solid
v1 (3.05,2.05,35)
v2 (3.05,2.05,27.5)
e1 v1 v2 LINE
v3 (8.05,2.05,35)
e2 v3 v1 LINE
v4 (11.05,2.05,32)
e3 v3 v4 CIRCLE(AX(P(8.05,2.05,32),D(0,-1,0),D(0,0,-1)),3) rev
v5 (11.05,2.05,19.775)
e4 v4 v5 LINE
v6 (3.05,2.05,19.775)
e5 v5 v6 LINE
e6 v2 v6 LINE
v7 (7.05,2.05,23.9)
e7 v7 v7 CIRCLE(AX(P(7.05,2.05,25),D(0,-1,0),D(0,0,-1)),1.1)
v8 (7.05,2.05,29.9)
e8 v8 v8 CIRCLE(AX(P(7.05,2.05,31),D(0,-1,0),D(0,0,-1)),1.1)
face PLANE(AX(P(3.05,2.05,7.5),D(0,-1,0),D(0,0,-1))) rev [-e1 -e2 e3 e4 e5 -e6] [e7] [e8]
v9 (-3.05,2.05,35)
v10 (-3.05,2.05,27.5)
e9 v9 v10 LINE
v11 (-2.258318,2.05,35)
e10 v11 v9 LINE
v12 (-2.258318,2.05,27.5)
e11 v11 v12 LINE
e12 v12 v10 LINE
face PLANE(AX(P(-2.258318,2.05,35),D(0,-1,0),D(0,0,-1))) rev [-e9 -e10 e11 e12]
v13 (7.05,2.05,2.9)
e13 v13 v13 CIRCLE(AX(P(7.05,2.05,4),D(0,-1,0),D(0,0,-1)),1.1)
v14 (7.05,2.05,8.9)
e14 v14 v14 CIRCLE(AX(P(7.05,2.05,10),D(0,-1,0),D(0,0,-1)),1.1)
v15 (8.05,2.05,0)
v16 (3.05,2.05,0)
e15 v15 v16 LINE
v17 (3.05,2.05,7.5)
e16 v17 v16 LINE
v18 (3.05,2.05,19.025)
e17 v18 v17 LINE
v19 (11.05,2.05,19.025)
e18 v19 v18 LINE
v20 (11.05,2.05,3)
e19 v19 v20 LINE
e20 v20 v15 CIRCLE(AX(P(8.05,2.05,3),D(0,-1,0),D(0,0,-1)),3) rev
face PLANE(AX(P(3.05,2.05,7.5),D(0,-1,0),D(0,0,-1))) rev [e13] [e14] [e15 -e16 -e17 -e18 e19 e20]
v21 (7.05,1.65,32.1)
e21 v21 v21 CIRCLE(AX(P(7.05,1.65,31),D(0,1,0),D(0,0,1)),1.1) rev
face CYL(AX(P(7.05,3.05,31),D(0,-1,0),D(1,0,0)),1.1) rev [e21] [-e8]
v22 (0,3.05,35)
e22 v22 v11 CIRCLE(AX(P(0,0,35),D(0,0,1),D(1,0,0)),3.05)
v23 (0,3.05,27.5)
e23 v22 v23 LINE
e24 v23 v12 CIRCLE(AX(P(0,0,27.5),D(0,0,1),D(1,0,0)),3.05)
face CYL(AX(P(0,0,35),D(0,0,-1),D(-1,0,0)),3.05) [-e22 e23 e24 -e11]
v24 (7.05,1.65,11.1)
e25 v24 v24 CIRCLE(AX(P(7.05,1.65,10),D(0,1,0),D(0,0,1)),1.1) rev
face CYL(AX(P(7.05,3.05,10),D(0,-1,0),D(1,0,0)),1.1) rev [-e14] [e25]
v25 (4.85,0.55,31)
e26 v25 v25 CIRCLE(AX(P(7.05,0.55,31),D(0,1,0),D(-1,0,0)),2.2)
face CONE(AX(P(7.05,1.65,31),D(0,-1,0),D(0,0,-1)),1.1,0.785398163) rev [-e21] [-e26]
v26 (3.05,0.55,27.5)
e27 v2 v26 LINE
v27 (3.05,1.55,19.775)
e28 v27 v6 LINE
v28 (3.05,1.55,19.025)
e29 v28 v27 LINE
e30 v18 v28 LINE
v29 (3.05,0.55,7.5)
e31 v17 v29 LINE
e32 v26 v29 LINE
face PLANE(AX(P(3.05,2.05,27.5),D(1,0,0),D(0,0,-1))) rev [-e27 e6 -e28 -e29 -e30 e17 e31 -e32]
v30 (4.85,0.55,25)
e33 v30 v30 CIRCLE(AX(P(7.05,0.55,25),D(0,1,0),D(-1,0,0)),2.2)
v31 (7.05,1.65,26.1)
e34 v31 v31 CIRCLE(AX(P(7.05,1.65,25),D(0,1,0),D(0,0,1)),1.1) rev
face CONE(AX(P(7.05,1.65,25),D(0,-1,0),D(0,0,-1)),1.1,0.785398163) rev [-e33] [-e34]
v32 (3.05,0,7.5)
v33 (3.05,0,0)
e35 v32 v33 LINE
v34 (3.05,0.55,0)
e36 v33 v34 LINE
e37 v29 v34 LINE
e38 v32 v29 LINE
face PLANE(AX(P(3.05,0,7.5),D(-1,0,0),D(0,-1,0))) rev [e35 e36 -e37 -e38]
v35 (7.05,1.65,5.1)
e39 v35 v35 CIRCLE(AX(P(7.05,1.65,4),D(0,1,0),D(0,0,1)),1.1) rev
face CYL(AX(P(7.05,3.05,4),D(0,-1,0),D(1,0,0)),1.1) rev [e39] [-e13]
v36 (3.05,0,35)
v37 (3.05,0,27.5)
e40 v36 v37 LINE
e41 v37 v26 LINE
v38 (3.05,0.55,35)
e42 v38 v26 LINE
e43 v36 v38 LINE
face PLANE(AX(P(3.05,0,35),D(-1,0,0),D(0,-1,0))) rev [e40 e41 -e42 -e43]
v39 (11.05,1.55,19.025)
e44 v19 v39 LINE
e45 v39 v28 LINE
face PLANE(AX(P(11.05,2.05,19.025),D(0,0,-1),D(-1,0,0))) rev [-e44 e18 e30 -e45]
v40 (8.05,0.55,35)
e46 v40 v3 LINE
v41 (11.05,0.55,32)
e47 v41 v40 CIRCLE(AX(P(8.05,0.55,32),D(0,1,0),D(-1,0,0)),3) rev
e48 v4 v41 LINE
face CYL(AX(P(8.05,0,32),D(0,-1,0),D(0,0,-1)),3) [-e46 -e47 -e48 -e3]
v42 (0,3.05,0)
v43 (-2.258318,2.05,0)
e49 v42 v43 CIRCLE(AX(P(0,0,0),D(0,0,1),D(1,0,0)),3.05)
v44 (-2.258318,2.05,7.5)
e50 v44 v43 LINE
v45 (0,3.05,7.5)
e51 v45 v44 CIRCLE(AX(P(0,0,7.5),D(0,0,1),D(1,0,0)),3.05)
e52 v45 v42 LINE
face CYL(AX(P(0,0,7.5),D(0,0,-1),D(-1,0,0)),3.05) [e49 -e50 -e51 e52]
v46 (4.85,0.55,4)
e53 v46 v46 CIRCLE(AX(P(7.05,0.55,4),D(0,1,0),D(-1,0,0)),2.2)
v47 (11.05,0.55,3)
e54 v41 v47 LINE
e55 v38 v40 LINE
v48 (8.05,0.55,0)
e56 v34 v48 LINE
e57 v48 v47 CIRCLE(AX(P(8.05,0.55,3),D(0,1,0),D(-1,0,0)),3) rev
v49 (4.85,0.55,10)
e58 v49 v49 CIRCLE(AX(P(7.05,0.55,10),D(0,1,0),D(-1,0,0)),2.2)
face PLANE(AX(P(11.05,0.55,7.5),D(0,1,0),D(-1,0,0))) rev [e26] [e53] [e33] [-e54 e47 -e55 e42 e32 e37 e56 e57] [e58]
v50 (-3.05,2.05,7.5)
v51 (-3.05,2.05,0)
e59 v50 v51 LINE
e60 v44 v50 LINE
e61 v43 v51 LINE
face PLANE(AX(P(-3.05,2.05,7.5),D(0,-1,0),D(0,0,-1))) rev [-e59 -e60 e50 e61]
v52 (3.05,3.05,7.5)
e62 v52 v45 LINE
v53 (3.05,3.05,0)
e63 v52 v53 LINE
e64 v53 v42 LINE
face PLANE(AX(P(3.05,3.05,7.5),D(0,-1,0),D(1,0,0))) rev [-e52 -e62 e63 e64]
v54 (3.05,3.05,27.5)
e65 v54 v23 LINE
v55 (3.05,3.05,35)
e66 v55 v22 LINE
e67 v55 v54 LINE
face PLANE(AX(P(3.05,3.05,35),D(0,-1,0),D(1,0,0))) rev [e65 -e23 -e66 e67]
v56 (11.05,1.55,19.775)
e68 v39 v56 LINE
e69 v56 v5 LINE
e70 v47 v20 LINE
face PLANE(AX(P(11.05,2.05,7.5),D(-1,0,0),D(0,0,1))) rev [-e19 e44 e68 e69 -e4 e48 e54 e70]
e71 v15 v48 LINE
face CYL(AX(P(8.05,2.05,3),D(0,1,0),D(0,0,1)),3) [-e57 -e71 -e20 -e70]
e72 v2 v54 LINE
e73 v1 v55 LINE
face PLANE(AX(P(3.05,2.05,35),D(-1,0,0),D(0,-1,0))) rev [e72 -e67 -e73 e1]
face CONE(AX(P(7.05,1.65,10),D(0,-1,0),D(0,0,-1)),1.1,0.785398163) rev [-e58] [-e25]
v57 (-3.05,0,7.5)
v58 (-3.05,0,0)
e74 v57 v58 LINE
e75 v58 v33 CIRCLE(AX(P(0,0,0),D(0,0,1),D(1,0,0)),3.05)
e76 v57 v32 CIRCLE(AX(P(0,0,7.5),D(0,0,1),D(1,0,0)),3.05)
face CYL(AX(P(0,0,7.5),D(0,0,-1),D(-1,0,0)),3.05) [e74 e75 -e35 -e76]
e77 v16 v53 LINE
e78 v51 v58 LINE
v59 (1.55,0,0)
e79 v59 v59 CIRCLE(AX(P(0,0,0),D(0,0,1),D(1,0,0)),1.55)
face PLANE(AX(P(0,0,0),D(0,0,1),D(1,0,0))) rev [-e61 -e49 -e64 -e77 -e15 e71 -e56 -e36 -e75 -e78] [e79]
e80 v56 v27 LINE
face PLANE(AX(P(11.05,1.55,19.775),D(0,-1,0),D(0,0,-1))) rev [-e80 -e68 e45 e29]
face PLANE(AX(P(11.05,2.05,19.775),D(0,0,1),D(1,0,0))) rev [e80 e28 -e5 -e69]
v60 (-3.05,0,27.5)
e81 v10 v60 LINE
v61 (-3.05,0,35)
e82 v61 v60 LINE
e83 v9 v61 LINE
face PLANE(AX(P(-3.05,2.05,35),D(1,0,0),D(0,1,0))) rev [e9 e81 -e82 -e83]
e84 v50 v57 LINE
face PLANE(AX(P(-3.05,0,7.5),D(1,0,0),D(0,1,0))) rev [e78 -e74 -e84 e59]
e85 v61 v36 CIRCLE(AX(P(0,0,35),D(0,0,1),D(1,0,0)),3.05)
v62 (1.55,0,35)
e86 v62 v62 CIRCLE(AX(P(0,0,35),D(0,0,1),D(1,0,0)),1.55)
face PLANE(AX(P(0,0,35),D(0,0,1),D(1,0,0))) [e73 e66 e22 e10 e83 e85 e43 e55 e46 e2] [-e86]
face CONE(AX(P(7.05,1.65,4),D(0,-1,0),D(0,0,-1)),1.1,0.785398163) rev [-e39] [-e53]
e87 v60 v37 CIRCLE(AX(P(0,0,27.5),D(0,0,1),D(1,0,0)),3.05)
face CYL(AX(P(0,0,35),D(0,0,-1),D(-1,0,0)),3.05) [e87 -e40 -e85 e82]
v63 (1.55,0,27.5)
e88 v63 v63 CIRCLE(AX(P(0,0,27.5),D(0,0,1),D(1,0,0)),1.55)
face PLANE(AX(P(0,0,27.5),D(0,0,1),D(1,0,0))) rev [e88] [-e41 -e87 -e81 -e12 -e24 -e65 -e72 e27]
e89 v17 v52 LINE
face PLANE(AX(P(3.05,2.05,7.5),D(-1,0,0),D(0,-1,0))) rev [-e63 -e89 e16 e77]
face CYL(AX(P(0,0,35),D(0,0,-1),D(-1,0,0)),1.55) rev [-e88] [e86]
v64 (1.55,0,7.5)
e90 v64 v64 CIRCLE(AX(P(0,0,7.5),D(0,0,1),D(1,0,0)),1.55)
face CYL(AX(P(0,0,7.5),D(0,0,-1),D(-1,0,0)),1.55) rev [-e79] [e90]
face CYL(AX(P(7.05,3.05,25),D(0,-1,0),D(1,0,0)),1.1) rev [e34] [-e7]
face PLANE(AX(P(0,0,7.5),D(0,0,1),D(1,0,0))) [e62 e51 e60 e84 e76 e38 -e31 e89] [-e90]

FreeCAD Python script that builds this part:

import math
import FreeCAD as App
import Part
import Sketcher

V = App.Vector


def edges_at(feature, points):
    """Names of the edges that pass closest to the given points."""
    edges = feature.Shape.Edges
    near = lambda p: min(range(len(edges)), key=lambda i: edges[i].distToShape(Part.Vertex(*p))[0])
    return sorted({f"Edge{near(p) + 1}" for p in points})

doc = App.newDocument("Part")
body = doc.addObject("PartDesign::Body", "Body")

# Sketch on XY plane
sketch1 = body.newObject("Sketcher::SketchObject", "Sketch")
sketch1.AttachmentSupport = (doc.getObject("XY_Plane"), [""])
sketch1.MapMode = "FlatFace"
sketch1.addGeometry([
    Part.LineSegment(V(11.1, 2, 0), V(3, 2, 0)),  # 0
    Part.LineSegment(V(3, 2, 0), V(3, 3, 0)),  # 1
    Part.LineSegment(V(3, 3, 0), V(0, 3, 0)),  # 2
    Part.ArcOfCircle(Part.Circle(V(0, 0, 0), V(0, 0, 1), 3.1), math.radians(90), math.radians(138)),  # 3
    Part.LineSegment(V(-2.3, 2, 0), V(-3, 2, 0)),  # 4
    Part.LineSegment(V(-3, 2, 0), V(-3, 0, 0)),  # 5
    Part.ArcOfCircle(Part.Circle(V(0, 0, 0), V(0, 0, 1), 3), math.radians(180), math.radians(360)),  # 6
    Part.LineSegment(V(3, 0, 0), V(3, 0.6, 0)),  # 7
    Part.LineSegment(V(3, 0.6, 0), V(11.1, 0.6, 0)),  # 8
    Part.LineSegment(V(11.1, 0.6, 0), V(11.1, 2, 0)),  # 9
    Part.Circle(V(0, 0, 0), V(0, 0, 1), 1.6),  # 10
], False)
sketch1.addConstraint([
    Sketcher.Constraint("Coincident", 0, 2, 1, 1),
    Sketcher.Constraint("Coincident", 1, 2, 2, 1),
    Sketcher.Constraint("Tangent", 2, 2, 3, 1),
    Sketcher.Constraint("Coincident", 3, 2, 4, 1),
    Sketcher.Constraint("Coincident", 4, 2, 5, 1),
    Sketcher.Constraint("Tangent", 5, 2, 6, 1),
    Sketcher.Constraint("Tangent", 6, 2, 7, 1),
    Sketcher.Constraint("Coincident", 7, 2, 8, 1),
    Sketcher.Constraint("Coincident", 8, 2, 9, 1),
    Sketcher.Constraint("Coincident", 9, 2, 0, 1),
    Sketcher.Constraint("Horizontal", 0),
    Sketcher.Constraint("Vertical", 1),
    Sketcher.Constraint("Horizontal", 2),
    Sketcher.Constraint("Horizontal", 4),
    Sketcher.Constraint("Vertical", 5),
    Sketcher.Constraint("Vertical", 7),
    Sketcher.Constraint("Horizontal", 8),
    Sketcher.Constraint("Vertical", 9),
    Sketcher.Constraint("Coincident", 3, 3, -1, 1),
    Sketcher.Constraint("Coincident", 6, 3, -1, 1),
    Sketcher.Constraint("Coincident", 10, 3, -1, 1),
    Sketcher.Constraint("Equal", 3, 6),
    Sketcher.Constraint("Symmetric", 0, 2, 4, 2, -2),
    Sketcher.Constraint("Diameter", 10, 3.1),
    Sketcher.Constraint("DistanceX", 0, 2, 0, 1, 8.0),
    Sketcher.Constraint("DistanceY", 1, 1, 1, 2, 1.0),
    Sketcher.Constraint("Radius", 3, 3.05),
    Sketcher.Constraint("DistanceY", 9, 1, 9, 2, 1.5),
])
pad1 = body.newObject("PartDesign::Pad", "Pad")
pad1.Profile = sketch1
pad1.Length = 7.5

# Sketch on XY plane
sketch2 = body.newObject("Sketcher::SketchObject", "Sketch001")
sketch2.AttachmentSupport = (doc.getObject("XY_Plane"), [""])
sketch2.MapMode = "FlatFace"
sketch2.AttachmentOffset = App.Placement(V(0, 0, 7.5), App.Rotation())
sketch2.addGeometry([
    Part.LineSegment(V(3, 2, 0), V(3, 0.6, 0)),
    Part.LineSegment(V(3, 0.6, 0), V(11.1, 0.6, 0)),
    Part.LineSegment(V(11.1, 0.6, 0), V(11.1, 2, 0)),
    Part.LineSegment(V(11.1, 2, 0), V(3, 2, 0)),
], False)
sketch2.addConstraint([
    Sketcher.Constraint("Coincident", 0, 2, 1, 1),
    Sketcher.Constraint("Coincident", 1, 2, 2, 1),
    Sketcher.Constraint("Coincident", 2, 2, 3, 1),
    Sketcher.Constraint("Coincident", 3, 2, 0, 1),
    Sketcher.Constraint("Vertical", 0),
    Sketcher.Constraint("Horizontal", 1),
    Sketcher.Constraint("Vertical", 2),
    Sketcher.Constraint("Horizontal", 3),
    Sketcher.Constraint("DistanceX", 1, 1, 1, 2, 8.0),
    Sketcher.Constraint("DistanceY", 0, 2, 0, 1, 1.5),
    Sketcher.Constraint("DistanceX", -1, 1, 0, 2, 3.05),
    Sketcher.Constraint("DistanceY", -1, 1, 0, 2, 0.55),
])
pad2 = body.newObject("PartDesign::Pad", "Pad001")
pad2.Profile = sketch2
pad2.Length = 20

# Sketch on XY plane
sketch3 = body.newObject("Sketcher::SketchObject", "Sketch002")
sketch3.AttachmentSupport = (doc.getObject("XY_Plane"), [""])
sketch3.MapMode = "FlatFace"
sketch3.AttachmentOffset = App.Placement(V(0, 0, 27.5), App.Rotation())
sketch3.addGeometry([
    Part.LineSegment(V(11.1, 0.6, 0), V(11.1, 2, 0)),  # 0
    Part.LineSegment(V(11.1, 2, 0), V(3, 2, 0)),  # 1
    Part.LineSegment(V(3, 2, 0), V(3, 3, 0)),  # 2
    Part.LineSegment(V(3, 3, 0), V(0, 3, 0)),  # 3
    Part.ArcOfCircle(Part.Circle(V(0, 0, 0), V(0, 0, 1), 3.1), math.radians(90), math.radians(138)),  # 4
    Part.LineSegment(V(-2.3, 2, 0), V(-3, 2, 0)),  # 5
    Part.LineSegment(V(-3, 2, 0), V(-3, 0, 0)),  # 6
    Part.ArcOfCircle(Part.Circle(V(0, 0, 0), V(0, 0, 1), 3), math.radians(180), math.radians(360)),  # 7
    Part.LineSegment(V(3, 0, 0), V(3, 0.6, 0)),  # 8
    Part.LineSegment(V(3, 0.6, 0), V(11.1, 0.6, 0)),  # 9
    Part.Circle(V(0, 0, 0), V(0, 0, 1), 1.6),  # 10
], False)
sketch3.addConstraint([
    Sketcher.Constraint("Coincident", 0, 2, 1, 1),
    Sketcher.Constraint("Coincident", 1, 2, 2, 1),
    Sketcher.Constraint("Coincident", 2, 2, 3, 1),
    Sketcher.Constraint("Tangent", 3, 2, 4, 1),
    Sketcher.Constraint("Coincident", 4, 2, 5, 1),
    Sketcher.Constraint("Coincident", 5, 2, 6, 1),
    Sketcher.Constraint("Tangent", 6, 2, 7, 1),
    Sketcher.Constraint("Tangent", 7, 2, 8, 1),
    Sketcher.Constraint("Coincident", 8, 2, 9, 1),
    Sketcher.Constraint("Coincident", 9, 2, 0, 1),
    Sketcher.Constraint("Vertical", 0),
    Sketcher.Constraint("Horizontal", 1),
    Sketcher.Constraint("Vertical", 2),
    Sketcher.Constraint("Horizontal", 3),
    Sketcher.Constraint("Horizontal", 5),
    Sketcher.Constraint("Vertical", 6),
    Sketcher.Constraint("Vertical", 8),
    Sketcher.Constraint("Horizontal", 9),
    Sketcher.Constraint("Coincident", 4, 3, -1, 1),
    Sketcher.Constraint("Coincident", 7, 3, -1, 1),
    Sketcher.Constraint("Coincident", 10, 3, -1, 1),
    Sketcher.Constraint("Equal", 4, 7),
    Sketcher.Constraint("Symmetric", 1, 2, 5, 2, -2),
    Sketcher.Constraint("Diameter", 10, 3.1),
    Sketcher.Constraint("DistanceX", 1, 2, 1, 1, 8.0),
    Sketcher.Constraint("DistanceY", 2, 1, 2, 2, 1.0),
    Sketcher.Constraint("Radius", 4, 3.05),
    Sketcher.Constraint("DistanceY", 0, 1, 0, 2, 1.5),
])
pad3 = body.newObject("PartDesign::Pad", "Pad002")
pad3.Profile = sketch3
pad3.Length = 7.5

# Sketch on YZ plane
sketch4 = body.newObject("Sketcher::SketchObject", "Sketch003")
sketch4.AttachmentSupport = (doc.getObject("YZ_Plane"), [""])
sketch4.MapMode = "FlatFace"
sketch4.AttachmentOffset = App.Placement(V(0, 0, 3.05), App.Rotation())
sketch4.addGeometry([
    Part.LineSegment(V(2.05, 19.02, 0), V(1.55, 19.02, 0)),
    Part.LineSegment(V(1.55, 19.02, 0), V(1.55, 19.77, 0)),
    Part.LineSegment(V(1.55, 19.77, 0), V(2.05, 19.77, 0)),
    Part.LineSegment(V(2.05, 19.77, 0), V(2.05, 19.02, 0)),
], False)
sketch4.addConstraint([
    Sketcher.Constraint("Coincident", 0, 2, 1, 1),
    Sketcher.Constraint("Coincident", 1, 2, 2, 1),
    Sketcher.Constraint("Coincident", 2, 2, 3, 1),
    Sketcher.Constraint("Coincident", 3, 2, 0, 1),
    Sketcher.Constraint("Horizontal", 0),
    Sketcher.Constraint("Vertical", 1),
    Sketcher.Constraint("Horizontal", 2),
    Sketcher.Constraint("Vertical", 3),
    Sketcher.Constraint("DistanceX", 0, 2, 0, 1, 0.5),
    Sketcher.Constraint("DistanceY", 1, 1, 1, 2, 0.75),
    Sketcher.Constraint("DistanceX", -1, 1, 0, 2, 1.55),
    Sketcher.Constraint("DistanceY", -1, 1, 0, 2, 19.025),
])
pocket1 = body.newObject("PartDesign::Pocket", "Pocket")
pocket1.Profile = sketch4
pocket1.Type = "ThroughAll"
pocket1.Reversed = True

# Sketch on XZ plane
sketch5 = body.newObject("Sketcher::SketchObject", "Sketch004")
sketch5.AttachmentSupport = (doc.getObject("XZ_Plane"), [""])
sketch5.MapMode = "FlatFace"
sketch5.AttachmentOffset = App.Placement(V(0, 0, -0.55), App.Rotation())
sketch5.addGeometry([
    Part.Circle(V(7, 25, 0), V(0, 0, 1), 1.1),
    Part.Circle(V(7, 10, 0), V(0, 0, 1), 1.1),
    Part.Circle(V(7, 31, 0), V(0, 0, 1), 1.1),
    Part.Circle(V(7, 4, 0), V(0, 0, 1), 1.1),
], False)
sketch5.addConstraint([
    Sketcher.Constraint("Equal", 0, 1),
    Sketcher.Constraint("Equal", 1, 2),
    Sketcher.Constraint("Equal", 2, 3),
    Sketcher.Constraint("Vertical", 0, 3, 1, 3),
    Sketcher.Constraint("Vertical", 1, 3, 2, 3),
    Sketcher.Constraint("Vertical", 2, 3, 3, 3),
    Sketcher.Constraint("Diameter", 0, 2.2),
    Sketcher.Constraint("DistanceY", -1, 1, 0, 3, 25.0),
    Sketcher.Constraint("DistanceY", -1, 1, 1, 3, 10.0),
    Sketcher.Constraint("DistanceY", -1, 1, 2, 3, 31.0),
    Sketcher.Constraint("DistanceY", -1, 1, 3, 3, 4.0),
    Sketcher.Constraint("DistanceX", -1, 1, 0, 3, 7.05),
])
pocket2 = body.newObject("PartDesign::Pocket", "Pocket001")
pocket2.Profile = sketch5
pocket2.Type = "ThroughAll"
doc.recompute()

chamfer = body.newObject("PartDesign::Chamfer", "Chamfer")
chamfer.Base = (pocket2, edges_at(pocket2, [
    (5.95, 0.55, 10),
    (5.95, 0.55, 25),
    (5.95, 0.55, 4),
    (5.95, 0.55, 31),
]))
chamfer.Size = 1.1
doc.recompute()

fillet = body.newObject("PartDesign::Fillet", "Fillet")
fillet.Base = (chamfer, edges_at(chamfer, [(11.05, 1.3, 0), (11.05, 1.3, 35)]))
fillet.Radius = 3

doc.recompute()
